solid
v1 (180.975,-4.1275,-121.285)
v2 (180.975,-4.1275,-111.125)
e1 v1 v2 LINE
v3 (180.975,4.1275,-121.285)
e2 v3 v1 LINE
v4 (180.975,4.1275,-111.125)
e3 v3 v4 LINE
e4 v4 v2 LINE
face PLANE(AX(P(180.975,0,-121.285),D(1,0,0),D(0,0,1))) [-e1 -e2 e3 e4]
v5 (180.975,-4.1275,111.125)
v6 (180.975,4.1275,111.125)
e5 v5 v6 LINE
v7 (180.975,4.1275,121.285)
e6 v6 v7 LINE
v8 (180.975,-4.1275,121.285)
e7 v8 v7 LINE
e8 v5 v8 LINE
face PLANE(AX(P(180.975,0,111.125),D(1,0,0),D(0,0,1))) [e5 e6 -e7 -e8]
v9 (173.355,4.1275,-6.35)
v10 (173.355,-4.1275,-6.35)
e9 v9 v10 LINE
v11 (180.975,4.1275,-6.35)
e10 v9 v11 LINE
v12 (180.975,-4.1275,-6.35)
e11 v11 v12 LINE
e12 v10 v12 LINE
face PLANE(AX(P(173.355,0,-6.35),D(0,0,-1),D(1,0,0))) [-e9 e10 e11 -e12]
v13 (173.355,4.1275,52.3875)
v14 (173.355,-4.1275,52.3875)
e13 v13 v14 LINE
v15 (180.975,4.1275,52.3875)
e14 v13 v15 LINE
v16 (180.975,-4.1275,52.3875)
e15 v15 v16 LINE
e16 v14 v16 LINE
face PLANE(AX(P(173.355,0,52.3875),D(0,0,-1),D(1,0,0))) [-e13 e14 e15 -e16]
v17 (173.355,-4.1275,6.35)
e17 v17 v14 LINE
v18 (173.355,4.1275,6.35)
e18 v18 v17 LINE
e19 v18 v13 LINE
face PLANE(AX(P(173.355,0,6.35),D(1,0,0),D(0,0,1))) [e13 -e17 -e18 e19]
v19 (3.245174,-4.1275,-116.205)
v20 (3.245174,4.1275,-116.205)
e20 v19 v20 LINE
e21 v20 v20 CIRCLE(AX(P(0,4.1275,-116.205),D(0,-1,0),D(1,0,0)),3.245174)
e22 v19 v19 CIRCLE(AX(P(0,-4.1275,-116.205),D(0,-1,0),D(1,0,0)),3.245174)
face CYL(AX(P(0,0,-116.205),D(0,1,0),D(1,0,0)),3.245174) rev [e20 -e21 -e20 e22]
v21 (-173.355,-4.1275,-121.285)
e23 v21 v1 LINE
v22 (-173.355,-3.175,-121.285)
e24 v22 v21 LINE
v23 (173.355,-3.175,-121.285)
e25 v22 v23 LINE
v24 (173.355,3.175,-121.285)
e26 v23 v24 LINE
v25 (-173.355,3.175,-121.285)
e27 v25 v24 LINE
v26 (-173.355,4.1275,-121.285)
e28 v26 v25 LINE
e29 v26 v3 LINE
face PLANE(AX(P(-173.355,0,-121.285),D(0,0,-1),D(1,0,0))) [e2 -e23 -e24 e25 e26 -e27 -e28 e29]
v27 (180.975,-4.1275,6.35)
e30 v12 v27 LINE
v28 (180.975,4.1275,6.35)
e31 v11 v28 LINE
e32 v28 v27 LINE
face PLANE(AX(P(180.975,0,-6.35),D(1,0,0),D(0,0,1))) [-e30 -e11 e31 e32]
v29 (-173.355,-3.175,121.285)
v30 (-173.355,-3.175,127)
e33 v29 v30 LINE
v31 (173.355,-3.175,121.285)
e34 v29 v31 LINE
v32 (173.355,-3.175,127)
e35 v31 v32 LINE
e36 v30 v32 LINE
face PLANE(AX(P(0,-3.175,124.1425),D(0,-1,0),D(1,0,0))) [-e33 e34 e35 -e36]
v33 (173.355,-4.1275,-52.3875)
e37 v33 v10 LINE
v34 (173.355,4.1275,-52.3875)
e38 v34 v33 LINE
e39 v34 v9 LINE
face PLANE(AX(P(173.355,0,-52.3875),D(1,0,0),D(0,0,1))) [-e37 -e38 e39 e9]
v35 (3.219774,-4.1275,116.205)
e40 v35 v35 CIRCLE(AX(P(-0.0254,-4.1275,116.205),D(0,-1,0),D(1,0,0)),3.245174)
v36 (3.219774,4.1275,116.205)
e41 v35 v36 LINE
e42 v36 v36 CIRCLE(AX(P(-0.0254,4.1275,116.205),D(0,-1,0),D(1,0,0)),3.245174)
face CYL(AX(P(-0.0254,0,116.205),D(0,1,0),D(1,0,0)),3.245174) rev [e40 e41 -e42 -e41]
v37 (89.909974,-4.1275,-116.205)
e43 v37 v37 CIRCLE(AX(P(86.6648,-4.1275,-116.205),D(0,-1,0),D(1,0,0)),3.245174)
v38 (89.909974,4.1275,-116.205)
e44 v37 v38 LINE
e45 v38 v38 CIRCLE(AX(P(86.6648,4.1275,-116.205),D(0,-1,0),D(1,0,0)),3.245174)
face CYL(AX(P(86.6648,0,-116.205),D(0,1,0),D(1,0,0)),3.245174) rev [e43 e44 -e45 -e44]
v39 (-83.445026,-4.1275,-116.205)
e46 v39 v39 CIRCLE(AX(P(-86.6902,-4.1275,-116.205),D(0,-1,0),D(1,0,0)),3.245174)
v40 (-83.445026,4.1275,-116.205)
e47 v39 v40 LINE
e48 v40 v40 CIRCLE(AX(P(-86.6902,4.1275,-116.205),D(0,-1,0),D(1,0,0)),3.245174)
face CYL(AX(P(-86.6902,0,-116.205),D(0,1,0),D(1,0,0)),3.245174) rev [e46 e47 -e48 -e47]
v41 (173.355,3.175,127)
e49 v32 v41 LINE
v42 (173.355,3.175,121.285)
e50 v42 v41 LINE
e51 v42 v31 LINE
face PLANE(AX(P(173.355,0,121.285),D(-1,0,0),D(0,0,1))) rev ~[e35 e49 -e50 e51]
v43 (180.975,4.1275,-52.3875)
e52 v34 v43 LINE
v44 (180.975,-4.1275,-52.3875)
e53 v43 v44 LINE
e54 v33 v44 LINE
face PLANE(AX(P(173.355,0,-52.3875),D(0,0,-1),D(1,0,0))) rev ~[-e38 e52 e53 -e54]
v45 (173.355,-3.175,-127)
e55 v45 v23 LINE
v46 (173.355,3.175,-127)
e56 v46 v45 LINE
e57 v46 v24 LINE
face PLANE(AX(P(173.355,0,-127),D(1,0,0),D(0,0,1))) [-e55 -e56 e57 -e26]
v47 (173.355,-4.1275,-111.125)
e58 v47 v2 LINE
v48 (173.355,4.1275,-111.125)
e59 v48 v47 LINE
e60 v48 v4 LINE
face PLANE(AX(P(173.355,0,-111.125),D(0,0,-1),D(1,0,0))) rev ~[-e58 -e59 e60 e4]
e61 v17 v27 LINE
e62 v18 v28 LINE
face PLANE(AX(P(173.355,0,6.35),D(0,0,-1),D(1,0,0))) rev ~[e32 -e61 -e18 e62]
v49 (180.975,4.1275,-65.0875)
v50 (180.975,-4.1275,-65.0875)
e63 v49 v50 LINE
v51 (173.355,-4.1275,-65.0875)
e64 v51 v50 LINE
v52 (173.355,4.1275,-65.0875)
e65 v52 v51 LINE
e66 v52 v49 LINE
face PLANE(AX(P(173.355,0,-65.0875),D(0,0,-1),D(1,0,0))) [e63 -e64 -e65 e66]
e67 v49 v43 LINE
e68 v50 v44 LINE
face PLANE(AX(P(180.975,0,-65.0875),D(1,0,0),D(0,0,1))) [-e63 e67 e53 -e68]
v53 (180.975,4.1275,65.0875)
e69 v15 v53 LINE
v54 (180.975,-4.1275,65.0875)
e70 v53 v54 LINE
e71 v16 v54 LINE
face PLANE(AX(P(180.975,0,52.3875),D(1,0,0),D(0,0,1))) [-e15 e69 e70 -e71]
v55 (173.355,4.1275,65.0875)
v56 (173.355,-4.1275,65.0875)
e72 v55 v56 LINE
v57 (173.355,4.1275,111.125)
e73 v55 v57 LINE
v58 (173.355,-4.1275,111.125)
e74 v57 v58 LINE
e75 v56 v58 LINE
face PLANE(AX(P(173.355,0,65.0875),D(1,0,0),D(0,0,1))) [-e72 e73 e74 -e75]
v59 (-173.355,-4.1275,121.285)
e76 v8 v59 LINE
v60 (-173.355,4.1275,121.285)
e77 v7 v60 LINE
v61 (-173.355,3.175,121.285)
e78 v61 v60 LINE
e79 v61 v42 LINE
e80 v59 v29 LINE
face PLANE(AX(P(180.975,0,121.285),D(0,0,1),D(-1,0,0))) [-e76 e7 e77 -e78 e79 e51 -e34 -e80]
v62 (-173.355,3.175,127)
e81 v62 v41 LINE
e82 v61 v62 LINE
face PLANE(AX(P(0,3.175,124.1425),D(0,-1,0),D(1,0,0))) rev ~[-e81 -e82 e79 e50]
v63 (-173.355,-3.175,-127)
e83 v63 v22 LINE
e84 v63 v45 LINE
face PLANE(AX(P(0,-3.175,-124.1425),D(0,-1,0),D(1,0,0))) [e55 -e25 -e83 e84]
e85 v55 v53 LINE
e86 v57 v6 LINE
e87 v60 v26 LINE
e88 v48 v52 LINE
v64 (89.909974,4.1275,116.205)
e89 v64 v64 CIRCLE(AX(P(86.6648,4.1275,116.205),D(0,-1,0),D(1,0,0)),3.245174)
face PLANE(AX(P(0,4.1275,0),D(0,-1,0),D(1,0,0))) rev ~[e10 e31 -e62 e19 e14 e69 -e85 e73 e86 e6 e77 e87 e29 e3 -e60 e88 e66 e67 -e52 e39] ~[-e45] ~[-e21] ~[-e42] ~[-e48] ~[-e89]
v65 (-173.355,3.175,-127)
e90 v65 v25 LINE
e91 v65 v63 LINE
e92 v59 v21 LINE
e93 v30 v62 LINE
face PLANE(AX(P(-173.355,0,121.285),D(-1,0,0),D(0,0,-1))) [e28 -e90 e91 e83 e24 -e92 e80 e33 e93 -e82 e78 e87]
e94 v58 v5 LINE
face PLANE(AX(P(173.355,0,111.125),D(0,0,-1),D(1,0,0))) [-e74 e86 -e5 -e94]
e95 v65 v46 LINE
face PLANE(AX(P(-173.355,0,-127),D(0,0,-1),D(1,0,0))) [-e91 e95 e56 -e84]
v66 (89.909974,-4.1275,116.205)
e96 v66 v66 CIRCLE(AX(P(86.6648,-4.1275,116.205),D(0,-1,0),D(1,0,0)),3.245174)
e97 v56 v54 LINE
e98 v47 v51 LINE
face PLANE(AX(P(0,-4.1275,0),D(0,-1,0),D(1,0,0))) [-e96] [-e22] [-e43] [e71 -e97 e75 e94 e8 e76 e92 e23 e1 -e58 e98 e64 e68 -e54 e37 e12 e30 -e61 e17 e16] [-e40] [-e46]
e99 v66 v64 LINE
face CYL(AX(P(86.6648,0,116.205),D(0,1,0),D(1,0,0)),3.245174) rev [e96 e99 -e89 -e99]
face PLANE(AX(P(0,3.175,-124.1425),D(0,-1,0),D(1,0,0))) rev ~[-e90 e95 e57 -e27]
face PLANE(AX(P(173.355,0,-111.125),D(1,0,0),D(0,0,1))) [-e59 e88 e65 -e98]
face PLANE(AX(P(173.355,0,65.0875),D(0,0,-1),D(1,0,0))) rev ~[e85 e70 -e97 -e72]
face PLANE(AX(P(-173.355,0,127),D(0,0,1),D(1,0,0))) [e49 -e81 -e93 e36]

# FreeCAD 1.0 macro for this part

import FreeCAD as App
import Part
import Sketcher
Q = App.Units.Quantity


def add_polygon(sketch, points):
    """Adds a closed chain of lines whose ends are joined by coincident constraints."""
    first, n = sketch.GeometryCount, len(points)
    for a, b in zip(points, points[1:] + points[:1]):
        sketch.addGeometry(Part.LineSegment(App.Vector(*a, 0), App.Vector(*b, 0)), False)
    for i in range(n):
        sketch.addConstraint(Sketcher.Constraint("Coincident", first + i, 2, first + (i + 1) % n, 1))

doc = App.newDocument("Part")
body = doc.addObject("PartDesign::Body", "Body")

sketch1 = body.newObject("Sketcher::SketchObject", "Sketch")
sketch1.AttachmentSupport = (doc.getObject("XZ_Plane"), [""])
sketch1.MapMode = "FlatFace"
add_polygon(sketch1, [(-173.355, 121.285), (-173.355, -121.285), (180.975, -121.285), (180.975, -111.125), (173.355, -111.125), (173.355, -65.0875), (180.975, -65.0875), (180.975, -52.3875), (173.355, -52.3875), (173.355, -6.35), (180.975, -6.35), (180.975, 6.35), (173.355, 6.35), (173.355, 52.3875), (180.975, 52.3875), (180.975, 65.0875), (173.355, 65.0875), (173.355, 111.125), (180.975, 111.125), (180.975, 121.285)])
sketch1.addGeometry(Part.Circle(App.Vector(-86.6902, -116.205, 0), App.Vector(0, 0, 1), 3.245174), False)
sketch1.addGeometry(Part.Circle(App.Vector(0, -116.205, 0), App.Vector(0, 0, 1), 3.245174), False)
sketch1.addGeometry(Part.Circle(App.Vector(86.6648, -116.205, 0), App.Vector(0, 0, 1), 3.245174), False)
sketch1.addGeometry(Part.Circle(App.Vector(-0.0254, 116.205, 0), App.Vector(0, 0, 1), 3.245174), False)
sketch1.addGeometry(Part.Circle(App.Vector(86.6648, 116.205, 0), App.Vector(0, 0, 1), 3.245174), False)
sketch1.addConstraint([
    Sketcher.Constraint("Vertical", 0),
    Sketcher.Constraint("Horizontal", 1),
    Sketcher.Constraint("Vertical", 2),
    Sketcher.Constraint("Horizontal", 3),
    Sketcher.Constraint("Vertical", 4),
    Sketcher.Constraint("Horizontal", 5),
    Sketcher.Constraint("Vertical", 6),
    Sketcher.Constraint("Horizontal", 7),
    Sketcher.Constraint("Vertical", 8),
    Sketcher.Constraint("Horizontal", 9),
    Sketcher.Constraint("Vertical", 10),
    Sketcher.Constraint("Horizontal", 11),
    Sketcher.Constraint("Vertical", 12),
    Sketcher.Constraint("Horizontal", 13),
    Sketcher.Constraint("Vertical", 14),
    Sketcher.Constraint("Horizontal", 15),
    Sketcher.Constraint("Vertical", 16),
    Sketcher.Constraint("Horizontal", 17),
    Sketcher.Constraint("Vertical", 18),
    Sketcher.Constraint("Horizontal", 19),
    Sketcher.Constraint("Equal", 20, 21),
    Sketcher.Constraint("Equal", 21, 22),
    Sketcher.Constraint("Equal", 22, 23),
    Sketcher.Constraint("Equal", 23, 24),
    Sketcher.Constraint("Symmetric", 22, 3, 24, 3, -1),
    Sketcher.Constraint("Symmetric", 8, 2, 11, 2, -1),
    Sketcher.Constraint("Symmetric", 6, 2, 13, 2, -1),
    Sketcher.Constraint("Symmetric", 4, 2, 15, 2, -1),
    Sketcher.Constraint("Symmetric", 2, 2, 17, 2, -1),
    Sketcher.Constraint("PointOnObject", 21, 3, -2),
    Sketcher.Constraint("Horizontal", 20, 3, 21, 3),
    Sketcher.Constraint("Horizontal", 21, 3, 22, 3),
    Sketcher.Constraint("Horizontal", 23, 3, 24, 3),
    Sketcher.Constraint("Vertical", 2, 2, 5, 2),
    Sketcher.Constraint("Vertical", 4, 2, 7, 2),
    Sketcher.Constraint("Vertical", 6, 2, 9, 2),
    Sketcher.Constraint("Equal", 4, 8),
    Sketcher.Constraint("Equal", 6, 10),
    Sketcher.Constraint("Equal", 2, 18),
    Sketcher.Constraint("DistanceX", 3, 2, 3, 1, Q("0.3 in")),
    Sketcher.Constraint("DistanceY", 2, 1, 2, 2, Q("0.4 in")),
    Sketcher.Constraint("DistanceY", 6, 1, 6, 2, Q("0.5 in")),
    Sketcher.Constraint("DistanceX", 1, 1, 1, 2, Q("13.95 in")),
    Sketcher.Constraint("DistanceY", 0, 2, 0, 1, Q("9.55 in")),
    Sketcher.Constraint("DistanceY", 0, 2, 20, 3, Q("0.2 in")),
    Sketcher.Constraint("DistanceX", 20, 3, -1, 1, Q("3.413 in")),
    Sketcher.Constraint("DistanceX", -1, 1, 22, 3, Q("3.412 in")),
    Sketcher.Constraint("DistanceX", 23, 3, -1, 1, Q("0.001 in")),
    Sketcher.Constraint("DistanceX", 0, 2, -1, 1, Q("6.825 in")),
    Sketcher.Constraint("Diameter", 20, 6.490348),
])
pad1 = body.newObject("PartDesign::Pad", "Pad")
pad1.Profile = sketch1
pad1.Length = Q("0.325 in")
pad1.Midplane = True

sketch2 = body.newObject("Sketcher::SketchObject", "Sketch001")
sketch2.AttachmentSupport = (doc.getObject("XZ_Plane"), [""])
sketch2.MapMode = "FlatFace"
add_polygon(sketch2, [(-173.355, 127), (-173.355, 121.285), (173.355, 121.285), (173.355, 127)])
add_polygon(sketch2, [(-173.355, -121.285), (-173.355, -127), (173.355, -127), (173.355, -121.285)])
sketch2.addConstraint([
    Sketcher.Constraint("Vertical", 0),
    Sketcher.Constraint("Horizontal", 1),
    Sketcher.Constraint("Vertical", 2),
    Sketcher.Constraint("Horizontal", 3),
    Sketcher.Constraint("Vertical", 4),
    Sketcher.Constraint("Horizontal", 5),
    Sketcher.Constraint("Vertical", 6),
    Sketcher.Constraint("Horizontal", 7),
    Sketcher.Constraint("Symmetric", 2, 2, 4, 2, -1, 1),
    Sketcher.Constraint("Symmetric", 0, 2, 6, 2, -1, 1),
    Sketcher.Constraint("Vertical", 3, 2, 4, 2),
    Sketcher.Constraint("DistanceY", -1, 1, 2, 2, Q("5 in")),
    Sketcher.Constraint("DistanceX", 1, 1, 1, 2, Q("13.65 in")),
    Sketcher.Constraint("DistanceY", 0, 2, 0, 1, Q("0.225 in")),
])
pad2 = body.newObject("PartDesign::Pad", "Pad001")
pad2.Profile = sketch2
pad2.Length = Q("0.25 in")
pad2.Midplane = True

doc.recompute()
